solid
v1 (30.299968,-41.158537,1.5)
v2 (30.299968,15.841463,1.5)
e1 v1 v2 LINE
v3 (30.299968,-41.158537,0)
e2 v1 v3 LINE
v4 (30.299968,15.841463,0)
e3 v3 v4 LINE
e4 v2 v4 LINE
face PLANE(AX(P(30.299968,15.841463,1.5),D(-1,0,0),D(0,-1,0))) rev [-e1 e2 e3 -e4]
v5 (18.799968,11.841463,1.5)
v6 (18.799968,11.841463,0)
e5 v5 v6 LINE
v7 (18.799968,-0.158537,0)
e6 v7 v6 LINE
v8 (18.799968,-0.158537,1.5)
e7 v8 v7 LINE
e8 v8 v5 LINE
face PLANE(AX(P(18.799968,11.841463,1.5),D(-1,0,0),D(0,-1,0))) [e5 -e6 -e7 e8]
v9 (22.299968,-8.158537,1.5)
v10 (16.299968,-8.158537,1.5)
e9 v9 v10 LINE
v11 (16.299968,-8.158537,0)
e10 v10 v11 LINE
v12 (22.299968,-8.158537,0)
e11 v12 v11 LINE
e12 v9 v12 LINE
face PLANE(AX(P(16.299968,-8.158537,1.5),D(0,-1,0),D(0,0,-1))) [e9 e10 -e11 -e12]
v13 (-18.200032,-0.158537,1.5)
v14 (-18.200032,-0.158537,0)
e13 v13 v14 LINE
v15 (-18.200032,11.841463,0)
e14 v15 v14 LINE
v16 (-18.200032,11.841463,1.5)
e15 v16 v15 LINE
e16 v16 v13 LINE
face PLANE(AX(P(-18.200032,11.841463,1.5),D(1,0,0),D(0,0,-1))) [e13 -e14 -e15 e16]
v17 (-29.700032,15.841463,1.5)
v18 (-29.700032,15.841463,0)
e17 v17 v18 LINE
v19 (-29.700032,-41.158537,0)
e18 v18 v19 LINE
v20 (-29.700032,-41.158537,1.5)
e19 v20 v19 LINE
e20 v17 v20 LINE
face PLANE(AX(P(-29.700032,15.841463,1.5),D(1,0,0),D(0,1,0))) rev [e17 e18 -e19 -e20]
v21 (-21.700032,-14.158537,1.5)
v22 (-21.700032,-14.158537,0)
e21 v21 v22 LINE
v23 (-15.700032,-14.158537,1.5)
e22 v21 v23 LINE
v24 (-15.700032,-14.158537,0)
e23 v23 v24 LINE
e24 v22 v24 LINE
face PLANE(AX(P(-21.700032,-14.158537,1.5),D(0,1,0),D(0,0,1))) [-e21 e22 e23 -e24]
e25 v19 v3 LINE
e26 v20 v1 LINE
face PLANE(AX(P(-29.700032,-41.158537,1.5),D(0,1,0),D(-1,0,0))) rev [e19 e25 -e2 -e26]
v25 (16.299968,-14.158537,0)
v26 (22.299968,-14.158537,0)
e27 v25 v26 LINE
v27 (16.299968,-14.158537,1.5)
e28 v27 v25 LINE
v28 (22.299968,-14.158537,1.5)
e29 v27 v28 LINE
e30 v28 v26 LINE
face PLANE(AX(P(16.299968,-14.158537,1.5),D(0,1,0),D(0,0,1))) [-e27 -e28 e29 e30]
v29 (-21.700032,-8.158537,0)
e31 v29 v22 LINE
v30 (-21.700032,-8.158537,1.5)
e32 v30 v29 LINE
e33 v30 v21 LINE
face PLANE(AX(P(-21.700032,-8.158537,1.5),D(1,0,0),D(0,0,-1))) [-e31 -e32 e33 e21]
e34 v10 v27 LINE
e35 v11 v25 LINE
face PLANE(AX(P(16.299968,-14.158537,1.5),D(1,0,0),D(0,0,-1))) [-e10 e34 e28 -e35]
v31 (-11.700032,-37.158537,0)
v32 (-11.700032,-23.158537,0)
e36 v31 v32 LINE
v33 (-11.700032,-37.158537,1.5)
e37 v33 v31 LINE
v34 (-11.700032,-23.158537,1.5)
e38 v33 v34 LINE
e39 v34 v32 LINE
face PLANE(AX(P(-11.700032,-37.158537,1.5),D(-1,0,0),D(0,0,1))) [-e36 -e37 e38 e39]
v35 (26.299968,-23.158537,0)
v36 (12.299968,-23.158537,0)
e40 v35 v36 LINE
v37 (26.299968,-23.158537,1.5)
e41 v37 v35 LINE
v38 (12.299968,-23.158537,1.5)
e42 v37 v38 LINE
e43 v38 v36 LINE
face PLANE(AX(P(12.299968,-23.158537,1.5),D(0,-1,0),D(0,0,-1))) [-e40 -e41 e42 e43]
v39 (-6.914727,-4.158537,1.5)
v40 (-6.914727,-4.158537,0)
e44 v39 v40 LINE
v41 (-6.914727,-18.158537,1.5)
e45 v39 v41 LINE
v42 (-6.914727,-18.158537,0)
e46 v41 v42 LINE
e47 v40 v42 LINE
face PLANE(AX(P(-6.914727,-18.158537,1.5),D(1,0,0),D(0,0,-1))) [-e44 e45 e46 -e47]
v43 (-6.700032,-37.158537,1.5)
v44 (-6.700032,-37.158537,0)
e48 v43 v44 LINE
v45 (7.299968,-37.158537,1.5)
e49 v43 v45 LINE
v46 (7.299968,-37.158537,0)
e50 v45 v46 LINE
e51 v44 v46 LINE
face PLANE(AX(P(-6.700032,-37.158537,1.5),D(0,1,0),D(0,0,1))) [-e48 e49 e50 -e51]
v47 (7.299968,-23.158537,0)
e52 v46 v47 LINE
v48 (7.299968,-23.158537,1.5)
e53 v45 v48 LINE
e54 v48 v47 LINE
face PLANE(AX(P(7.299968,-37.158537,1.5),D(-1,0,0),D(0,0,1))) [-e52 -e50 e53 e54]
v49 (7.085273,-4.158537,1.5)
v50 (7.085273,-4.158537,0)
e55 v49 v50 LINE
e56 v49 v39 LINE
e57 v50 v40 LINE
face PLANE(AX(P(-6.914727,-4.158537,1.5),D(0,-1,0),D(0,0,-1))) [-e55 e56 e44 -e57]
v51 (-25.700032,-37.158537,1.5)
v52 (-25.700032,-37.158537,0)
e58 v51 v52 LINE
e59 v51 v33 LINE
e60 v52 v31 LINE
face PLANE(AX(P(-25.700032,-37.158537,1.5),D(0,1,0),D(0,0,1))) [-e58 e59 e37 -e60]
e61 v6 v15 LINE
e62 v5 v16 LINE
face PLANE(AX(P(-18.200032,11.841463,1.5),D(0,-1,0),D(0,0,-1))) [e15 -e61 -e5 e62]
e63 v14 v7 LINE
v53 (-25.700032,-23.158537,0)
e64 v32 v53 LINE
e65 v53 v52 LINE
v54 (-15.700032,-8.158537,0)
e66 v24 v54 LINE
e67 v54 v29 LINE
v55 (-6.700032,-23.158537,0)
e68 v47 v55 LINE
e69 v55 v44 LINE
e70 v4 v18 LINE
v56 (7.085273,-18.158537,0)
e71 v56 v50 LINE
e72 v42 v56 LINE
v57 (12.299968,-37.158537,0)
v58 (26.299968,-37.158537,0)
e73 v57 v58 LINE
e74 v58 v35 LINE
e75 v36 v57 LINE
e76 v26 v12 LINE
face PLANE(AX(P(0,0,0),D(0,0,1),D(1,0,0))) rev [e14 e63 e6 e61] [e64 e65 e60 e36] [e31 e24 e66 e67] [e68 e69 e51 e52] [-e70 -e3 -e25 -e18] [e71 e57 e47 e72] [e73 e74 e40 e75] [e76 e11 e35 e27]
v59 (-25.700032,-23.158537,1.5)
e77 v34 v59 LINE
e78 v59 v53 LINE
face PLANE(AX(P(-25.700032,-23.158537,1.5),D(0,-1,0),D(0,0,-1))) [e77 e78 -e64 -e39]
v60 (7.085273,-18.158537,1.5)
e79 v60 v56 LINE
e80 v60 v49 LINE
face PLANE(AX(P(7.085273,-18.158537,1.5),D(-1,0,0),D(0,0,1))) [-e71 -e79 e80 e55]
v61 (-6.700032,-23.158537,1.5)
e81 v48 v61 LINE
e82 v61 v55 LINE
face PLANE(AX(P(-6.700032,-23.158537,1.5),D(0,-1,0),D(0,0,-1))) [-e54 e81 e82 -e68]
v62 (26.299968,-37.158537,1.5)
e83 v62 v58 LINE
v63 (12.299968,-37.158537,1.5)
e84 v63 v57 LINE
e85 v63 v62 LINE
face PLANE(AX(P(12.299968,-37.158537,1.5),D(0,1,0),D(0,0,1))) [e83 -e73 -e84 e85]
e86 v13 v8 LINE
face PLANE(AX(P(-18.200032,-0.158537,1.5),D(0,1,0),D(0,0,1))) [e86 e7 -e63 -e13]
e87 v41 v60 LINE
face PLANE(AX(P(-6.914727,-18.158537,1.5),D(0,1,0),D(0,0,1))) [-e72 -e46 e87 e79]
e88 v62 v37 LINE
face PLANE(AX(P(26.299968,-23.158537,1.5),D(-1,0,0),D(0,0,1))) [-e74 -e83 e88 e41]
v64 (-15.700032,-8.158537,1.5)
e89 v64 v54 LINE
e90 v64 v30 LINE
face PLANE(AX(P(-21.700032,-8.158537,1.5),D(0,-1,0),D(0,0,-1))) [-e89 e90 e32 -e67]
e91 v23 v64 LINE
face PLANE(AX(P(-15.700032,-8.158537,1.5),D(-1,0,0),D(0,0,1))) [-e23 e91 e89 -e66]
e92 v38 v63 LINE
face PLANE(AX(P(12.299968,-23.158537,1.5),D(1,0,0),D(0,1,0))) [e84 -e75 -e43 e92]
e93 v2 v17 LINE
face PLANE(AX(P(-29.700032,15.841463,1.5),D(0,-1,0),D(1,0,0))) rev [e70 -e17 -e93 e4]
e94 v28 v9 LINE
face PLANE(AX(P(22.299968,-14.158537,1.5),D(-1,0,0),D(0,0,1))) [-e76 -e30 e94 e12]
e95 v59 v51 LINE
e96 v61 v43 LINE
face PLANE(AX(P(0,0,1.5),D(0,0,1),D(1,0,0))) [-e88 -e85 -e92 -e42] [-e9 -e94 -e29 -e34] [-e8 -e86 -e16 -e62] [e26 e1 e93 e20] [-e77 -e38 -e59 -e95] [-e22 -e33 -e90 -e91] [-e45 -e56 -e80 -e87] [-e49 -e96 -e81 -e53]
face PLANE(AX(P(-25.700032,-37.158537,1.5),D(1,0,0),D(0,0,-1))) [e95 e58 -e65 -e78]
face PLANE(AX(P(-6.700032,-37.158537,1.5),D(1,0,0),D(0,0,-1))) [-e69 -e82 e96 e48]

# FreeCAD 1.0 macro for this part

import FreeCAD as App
import Part
import Sketcher
from FreeCAD import Vector
Q = App.Units.Quantity


def add_polygon(sketch, points):
    """Adds a closed chain of lines whose ends are joined by coincident constraints."""
    first, n = sketch.GeometryCount, len(points)
    for a, b in zip(points, points[1:] + points[:1]):
        sketch.addGeometry(Part.LineSegment(App.Vector(*a, 0), App.Vector(*b, 0)), False)
    for i in range(n):
        sketch.addConstraint(Sketcher.Constraint("Coincident", first + i, 2, first + (i + 1) % n, 1))

doc = App.newDocument("Part")
body = doc.addObject("PartDesign::Body", "Body")

sketch1 = doc.addObject("Sketcher::SketchObject", "Sketch")
body.addObject(sketch1)
sketch1.AttachmentSupport = (doc.XY_Plane, [""])
sketch1.MapMode = "FlatFace"
add_polygon(sketch1, [(-30, 16), (-30, -41), (30, -41), (30, 16)])
add_polygon(sketch1, [(-12, -37), (-26, -37), (-26, -23), (-12, -23)])
add_polygon(sketch1, [(7, -37), (-7, -37), (-7, -23), (7, -23)])
add_polygon(sketch1, [(26, -37), (12, -37), (12, -23), (26, -23)])
add_polygon(sketch1, [(-16, -14), (-22, -14), (-22, -8), (-16, -8)])
add_polygon(sketch1, [(7, -18), (-7, -18), (-7, -4), (7, -4)])
add_polygon(sketch1, [(22, -14), (16, -14), (16, -8), (22, -8)])
add_polygon(sketch1, [(19, 0), (-18, 0), (-18, 12), (19, 12)])
sketch1.addConstraint([
    Sketcher.Constraint("Vertical", 0),
    Sketcher.Constraint("Horizontal", 1),
    Sketcher.Constraint("Vertical", 2),
    Sketcher.Constraint("Horizontal", 3),
    Sketcher.Constraint("Horizontal", 4),
    Sketcher.Constraint("Vertical", 5),
    Sketcher.Constraint("Horizontal", 6),
    Sketcher.Constraint("Vertical", 7),
    Sketcher.Constraint("Horizontal", 8),
    Sketcher.Constraint("Vertical", 9),
    Sketcher.Constraint("Horizontal", 10),
    Sketcher.Constraint("Vertical", 11),
    Sketcher.Constraint("Horizontal", 12),
    Sketcher.Constraint("Vertical", 13),
    Sketcher.Constraint("Horizontal", 14),
    Sketcher.Constraint("Vertical", 15),
    Sketcher.Constraint("Horizontal", 16),
    Sketcher.Constraint("Vertical", 17),
    Sketcher.Constraint("Horizontal", 18),
    Sketcher.Constraint("Vertical", 19),
    Sketcher.Constraint("Horizontal", 20),
    Sketcher.Constraint("Vertical", 21),
    Sketcher.Constraint("Horizontal", 22),
    Sketcher.Constraint("Vertical", 23),
    Sketcher.Constraint("Horizontal", 24),
    Sketcher.Constraint("Vertical", 25),
    Sketcher.Constraint("Horizontal", 26),
    Sketcher.Constraint("Vertical", 27),
    Sketcher.Constraint("Horizontal", 28),
    Sketcher.Constraint("Vertical", 29),
    Sketcher.Constraint("Horizontal", 30),
    Sketcher.Constraint("Vertical", 31),
    Sketcher.Constraint("Horizontal", 7, 2, 8, 2),
    Sketcher.Constraint("Horizontal", 6, 2, 9, 2),
    Sketcher.Constraint("Horizontal", 11, 2, 12, 2),
    Sketcher.Constraint("Horizontal", 10, 2, 13, 2),
    Sketcher.Constraint("Horizontal", 19, 2, 24, 2),
    Sketcher.Constraint("Horizontal", 18, 2, 25, 2),
    Sketcher.Constraint("Equal", 6, 8),
    Sketcher.Constraint("Equal", 10, 12),
    Sketcher.Constraint("Equal", 14, 20),
    Sketcher.Constraint("Equal", 18, 24),
    Sketcher.Constraint("Equal", 22, 5),
    Sketcher.Constraint("Equal", 26, 17),
    Sketcher.Constraint("Equal", 15, 21),
    Sketcher.Constraint("DistanceX", 1, 1, 1, 2, Q("60 mm")),
    Sketcher.Constraint("DistanceX", 4, 2, 4, 1, Q("14 mm")),
    Sketcher.Constraint("DistanceX", 16, 2, 16, 1, Q("6 mm")),
    Sketcher.Constraint("DistanceX", 28, 2, 28, 1, Q("37 mm")),
    Sketcher.Constraint("DistanceY", 0, 2, 0, 1, Q("57 mm")),
    Sketcher.Constraint("DistanceY", 29, 1, 29, 2, Q("12 mm")),
    Sketcher.Constraint("DistanceX", 0, 2, 4, 2, Q("4 mm")),
    Sketcher.Constraint("DistanceY", 0, 2, 4, 2, Q("4 mm")),
    Sketcher.Constraint("DistanceX", 7, 2, 8, 2, Q("5 mm")),
    Sketcher.Constraint("DistanceX", 11, 2, 12, 2, Q("5 mm")),
    Sketcher.Constraint("DistanceX", 5, 2, 16, 2, Q("4 mm")),
    Sketcher.Constraint("DistanceY", 5, 2, 16, 2, Q("9 mm")),
    Sketcher.Constraint("DistanceY", 9, 2, 20, 2, Q("5 mm")),
    Sketcher.Constraint("DistanceX", 13, 2, 24, 2, Q("4 mm")),
    Sketcher.Constraint("DistanceY", 18, 2, 28, 2, Q("8 mm")),
    Sketcher.Constraint("DistanceX", 28, 2, 18, 2, Q("2.5 mm")),
    Sketcher.Constraint("DistanceX", 0, 2, -1, 1, Q("29.700032 mm")),
    Sketcher.Constraint("DistanceY", 0, 2, -1, 1, Q("41.158537 mm")),
    Sketcher.Constraint("DistanceX", 20, 2, -1, 1, Q("6.914727 mm")),
])
pad1 = doc.addObject("PartDesign::Pad", "Pad")
body.addObject(pad1)
pad1.Profile = sketch1
pad1.Length = 1.5

doc.recompute()
